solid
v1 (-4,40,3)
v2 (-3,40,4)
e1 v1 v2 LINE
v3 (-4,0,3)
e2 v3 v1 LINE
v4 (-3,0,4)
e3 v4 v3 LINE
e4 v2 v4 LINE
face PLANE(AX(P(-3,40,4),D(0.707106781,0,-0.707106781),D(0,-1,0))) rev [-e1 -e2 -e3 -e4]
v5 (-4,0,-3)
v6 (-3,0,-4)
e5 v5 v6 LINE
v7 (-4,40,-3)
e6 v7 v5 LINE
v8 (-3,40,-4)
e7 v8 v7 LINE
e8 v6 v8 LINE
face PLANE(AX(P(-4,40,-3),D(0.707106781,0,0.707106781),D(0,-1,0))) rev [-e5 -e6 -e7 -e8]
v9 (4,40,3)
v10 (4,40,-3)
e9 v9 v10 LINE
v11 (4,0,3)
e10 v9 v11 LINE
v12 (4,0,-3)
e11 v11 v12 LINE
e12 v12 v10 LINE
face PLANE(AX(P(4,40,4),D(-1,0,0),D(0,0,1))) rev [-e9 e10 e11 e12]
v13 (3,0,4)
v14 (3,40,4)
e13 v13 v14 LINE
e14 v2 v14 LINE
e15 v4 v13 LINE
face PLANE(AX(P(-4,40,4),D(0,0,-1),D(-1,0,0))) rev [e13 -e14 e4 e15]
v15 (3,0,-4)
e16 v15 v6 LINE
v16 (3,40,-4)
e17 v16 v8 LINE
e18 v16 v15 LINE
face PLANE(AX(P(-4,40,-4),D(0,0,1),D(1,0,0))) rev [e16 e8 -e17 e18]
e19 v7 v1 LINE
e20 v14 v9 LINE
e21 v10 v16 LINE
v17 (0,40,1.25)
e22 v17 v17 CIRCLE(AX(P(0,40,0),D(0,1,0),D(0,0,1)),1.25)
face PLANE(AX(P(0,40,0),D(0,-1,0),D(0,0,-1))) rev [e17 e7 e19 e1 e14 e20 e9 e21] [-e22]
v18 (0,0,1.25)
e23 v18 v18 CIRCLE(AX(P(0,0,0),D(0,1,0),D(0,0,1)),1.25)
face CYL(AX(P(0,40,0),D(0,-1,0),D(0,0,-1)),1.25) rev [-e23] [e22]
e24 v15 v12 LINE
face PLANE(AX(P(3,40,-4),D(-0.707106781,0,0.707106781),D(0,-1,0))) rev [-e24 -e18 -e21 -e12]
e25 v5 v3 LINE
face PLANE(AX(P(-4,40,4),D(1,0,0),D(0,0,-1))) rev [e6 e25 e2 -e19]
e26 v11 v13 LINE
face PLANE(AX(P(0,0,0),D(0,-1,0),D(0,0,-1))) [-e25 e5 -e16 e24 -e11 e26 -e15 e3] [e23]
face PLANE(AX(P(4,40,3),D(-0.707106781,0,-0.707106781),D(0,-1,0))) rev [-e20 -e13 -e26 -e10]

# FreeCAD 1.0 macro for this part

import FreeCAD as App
import Part
import Sketcher


def edges_at(feature, points):
    """Names of the edges that pass closest to the given points."""
    edges = feature.Shape.Edges
    near = lambda p: min(range(len(edges)), key=lambda i: edges[i].distToShape(Part.Vertex(*p))[0])
    return sorted({f"Edge{near(p) + 1}" for p in points})

doc = App.newDocument("Part")
body = doc.addObject("PartDesign::Body", "Body")

# Sketch on XZ plane
sketch1 = doc.addObject("Sketcher::SketchObject", "Sketch")
body.addObject(sketch1)
sketch1.AttachmentSupport = (doc.XZ_Plane, [""])
sketch1.MapMode = "FlatFace"
sketch1.addGeometry(Part.LineSegment(App.Vector(-4, -4, 0), App.Vector(-4, 4, 0)), False)
sketch1.addGeometry(Part.LineSegment(App.Vector(-4, 4, 0), App.Vector(4, 4, 0)), False)
sketch1.addGeometry(Part.LineSegment(App.Vector(4, 4, 0), App.Vector(4, -4, 0)), False)
sketch1.addGeometry(Part.LineSegment(App.Vector(4, -4, 0), App.Vector(-4, -4, 0)), False)
sketch1.addGeometry(Part.Circle(App.Vector(0, 0, 0), App.Vector(0, 0, 1), 1.2), False)
sketch1.addConstraint(Sketcher.Constraint("Coincident", 0, 2, 1, 1))
sketch1.addConstraint(Sketcher.Constraint("Coincident", 1, 2, 2, 1))
sketch1.addConstraint(Sketcher.Constraint("Coincident", 2, 2, 3, 1))
sketch1.addConstraint(Sketcher.Constraint("Coincident", 3, 2, 0, 1))
sketch1.addConstraint(Sketcher.Constraint("Vertical", 0))
sketch1.addConstraint(Sketcher.Constraint("Horizontal", 1))
sketch1.addConstraint(Sketcher.Constraint("Vertical", 2))
sketch1.addConstraint(Sketcher.Constraint("Horizontal", 3))
sketch1.addConstraint(Sketcher.Constraint("Coincident", 4, 3, -1, 1))
sketch1.addConstraint(Sketcher.Constraint("Symmetric", 0, 2, 2, 2, -1, 1))
sketch1.addConstraint(Sketcher.Constraint("Equal", 3, 0))
sketch1.addConstraint(Sketcher.Constraint("Diameter", 4, 2.5))
sketch1.addConstraint(Sketcher.Constraint("DistanceX", 1, 1, 1, 2, 8.0))
pad1 = doc.addObject("PartDesign::Pad", "Pad")
body.addObject(pad1)
pad1.Profile = sketch1
pad1.Length = 40
pad1.Reversed = True
doc.recompute()

chamfer = doc.addObject("PartDesign::Chamfer", "Chamfer")
body.addObject(chamfer)
chamfer.Base = (pad1, edges_at(pad1, [
    (4, 20, 4),
    (-4, 20, 4),
    (-4, 20, -4),
    (4, 20, -4),
]))
chamfer.Size = 1

doc.recompute()
